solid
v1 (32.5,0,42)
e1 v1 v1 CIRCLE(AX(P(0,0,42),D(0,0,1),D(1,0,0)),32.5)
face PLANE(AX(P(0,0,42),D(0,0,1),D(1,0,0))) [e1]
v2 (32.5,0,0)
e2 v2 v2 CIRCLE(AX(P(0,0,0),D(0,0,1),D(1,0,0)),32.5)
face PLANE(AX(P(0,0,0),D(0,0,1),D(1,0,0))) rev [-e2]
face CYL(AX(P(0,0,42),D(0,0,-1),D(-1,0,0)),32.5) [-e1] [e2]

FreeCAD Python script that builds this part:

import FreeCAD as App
import Part
import Sketcher
from FreeCAD import Vector
Q = App.Units.Quantity

doc = App.newDocument("Part")
body = doc.addObject("PartDesign::Body", "Body")

# Sketch on XY plane
sketch1 = body.newObject("Sketcher::SketchObject", "Sketch")
sketch1.AttachmentSupport = (doc.getObject("XY_Plane"), [""])
sketch1.MapMode = "FlatFace"
sketch1.addGeometry(Part.Circle(Vector(0, 0, 0), Vector(0, 0, 1), 32), False)
sketch1.addConstraint(Sketcher.Constraint("Coincident", 0, 3, -1, 1))
sketch1.addConstraint(Sketcher.Constraint("Diameter", 0, Q("65 mm")))
pad1 = body.newObject("PartDesign::Pad", "Pad")
pad1.Profile = sketch1
pad1.Length = 42

doc.recompute()
